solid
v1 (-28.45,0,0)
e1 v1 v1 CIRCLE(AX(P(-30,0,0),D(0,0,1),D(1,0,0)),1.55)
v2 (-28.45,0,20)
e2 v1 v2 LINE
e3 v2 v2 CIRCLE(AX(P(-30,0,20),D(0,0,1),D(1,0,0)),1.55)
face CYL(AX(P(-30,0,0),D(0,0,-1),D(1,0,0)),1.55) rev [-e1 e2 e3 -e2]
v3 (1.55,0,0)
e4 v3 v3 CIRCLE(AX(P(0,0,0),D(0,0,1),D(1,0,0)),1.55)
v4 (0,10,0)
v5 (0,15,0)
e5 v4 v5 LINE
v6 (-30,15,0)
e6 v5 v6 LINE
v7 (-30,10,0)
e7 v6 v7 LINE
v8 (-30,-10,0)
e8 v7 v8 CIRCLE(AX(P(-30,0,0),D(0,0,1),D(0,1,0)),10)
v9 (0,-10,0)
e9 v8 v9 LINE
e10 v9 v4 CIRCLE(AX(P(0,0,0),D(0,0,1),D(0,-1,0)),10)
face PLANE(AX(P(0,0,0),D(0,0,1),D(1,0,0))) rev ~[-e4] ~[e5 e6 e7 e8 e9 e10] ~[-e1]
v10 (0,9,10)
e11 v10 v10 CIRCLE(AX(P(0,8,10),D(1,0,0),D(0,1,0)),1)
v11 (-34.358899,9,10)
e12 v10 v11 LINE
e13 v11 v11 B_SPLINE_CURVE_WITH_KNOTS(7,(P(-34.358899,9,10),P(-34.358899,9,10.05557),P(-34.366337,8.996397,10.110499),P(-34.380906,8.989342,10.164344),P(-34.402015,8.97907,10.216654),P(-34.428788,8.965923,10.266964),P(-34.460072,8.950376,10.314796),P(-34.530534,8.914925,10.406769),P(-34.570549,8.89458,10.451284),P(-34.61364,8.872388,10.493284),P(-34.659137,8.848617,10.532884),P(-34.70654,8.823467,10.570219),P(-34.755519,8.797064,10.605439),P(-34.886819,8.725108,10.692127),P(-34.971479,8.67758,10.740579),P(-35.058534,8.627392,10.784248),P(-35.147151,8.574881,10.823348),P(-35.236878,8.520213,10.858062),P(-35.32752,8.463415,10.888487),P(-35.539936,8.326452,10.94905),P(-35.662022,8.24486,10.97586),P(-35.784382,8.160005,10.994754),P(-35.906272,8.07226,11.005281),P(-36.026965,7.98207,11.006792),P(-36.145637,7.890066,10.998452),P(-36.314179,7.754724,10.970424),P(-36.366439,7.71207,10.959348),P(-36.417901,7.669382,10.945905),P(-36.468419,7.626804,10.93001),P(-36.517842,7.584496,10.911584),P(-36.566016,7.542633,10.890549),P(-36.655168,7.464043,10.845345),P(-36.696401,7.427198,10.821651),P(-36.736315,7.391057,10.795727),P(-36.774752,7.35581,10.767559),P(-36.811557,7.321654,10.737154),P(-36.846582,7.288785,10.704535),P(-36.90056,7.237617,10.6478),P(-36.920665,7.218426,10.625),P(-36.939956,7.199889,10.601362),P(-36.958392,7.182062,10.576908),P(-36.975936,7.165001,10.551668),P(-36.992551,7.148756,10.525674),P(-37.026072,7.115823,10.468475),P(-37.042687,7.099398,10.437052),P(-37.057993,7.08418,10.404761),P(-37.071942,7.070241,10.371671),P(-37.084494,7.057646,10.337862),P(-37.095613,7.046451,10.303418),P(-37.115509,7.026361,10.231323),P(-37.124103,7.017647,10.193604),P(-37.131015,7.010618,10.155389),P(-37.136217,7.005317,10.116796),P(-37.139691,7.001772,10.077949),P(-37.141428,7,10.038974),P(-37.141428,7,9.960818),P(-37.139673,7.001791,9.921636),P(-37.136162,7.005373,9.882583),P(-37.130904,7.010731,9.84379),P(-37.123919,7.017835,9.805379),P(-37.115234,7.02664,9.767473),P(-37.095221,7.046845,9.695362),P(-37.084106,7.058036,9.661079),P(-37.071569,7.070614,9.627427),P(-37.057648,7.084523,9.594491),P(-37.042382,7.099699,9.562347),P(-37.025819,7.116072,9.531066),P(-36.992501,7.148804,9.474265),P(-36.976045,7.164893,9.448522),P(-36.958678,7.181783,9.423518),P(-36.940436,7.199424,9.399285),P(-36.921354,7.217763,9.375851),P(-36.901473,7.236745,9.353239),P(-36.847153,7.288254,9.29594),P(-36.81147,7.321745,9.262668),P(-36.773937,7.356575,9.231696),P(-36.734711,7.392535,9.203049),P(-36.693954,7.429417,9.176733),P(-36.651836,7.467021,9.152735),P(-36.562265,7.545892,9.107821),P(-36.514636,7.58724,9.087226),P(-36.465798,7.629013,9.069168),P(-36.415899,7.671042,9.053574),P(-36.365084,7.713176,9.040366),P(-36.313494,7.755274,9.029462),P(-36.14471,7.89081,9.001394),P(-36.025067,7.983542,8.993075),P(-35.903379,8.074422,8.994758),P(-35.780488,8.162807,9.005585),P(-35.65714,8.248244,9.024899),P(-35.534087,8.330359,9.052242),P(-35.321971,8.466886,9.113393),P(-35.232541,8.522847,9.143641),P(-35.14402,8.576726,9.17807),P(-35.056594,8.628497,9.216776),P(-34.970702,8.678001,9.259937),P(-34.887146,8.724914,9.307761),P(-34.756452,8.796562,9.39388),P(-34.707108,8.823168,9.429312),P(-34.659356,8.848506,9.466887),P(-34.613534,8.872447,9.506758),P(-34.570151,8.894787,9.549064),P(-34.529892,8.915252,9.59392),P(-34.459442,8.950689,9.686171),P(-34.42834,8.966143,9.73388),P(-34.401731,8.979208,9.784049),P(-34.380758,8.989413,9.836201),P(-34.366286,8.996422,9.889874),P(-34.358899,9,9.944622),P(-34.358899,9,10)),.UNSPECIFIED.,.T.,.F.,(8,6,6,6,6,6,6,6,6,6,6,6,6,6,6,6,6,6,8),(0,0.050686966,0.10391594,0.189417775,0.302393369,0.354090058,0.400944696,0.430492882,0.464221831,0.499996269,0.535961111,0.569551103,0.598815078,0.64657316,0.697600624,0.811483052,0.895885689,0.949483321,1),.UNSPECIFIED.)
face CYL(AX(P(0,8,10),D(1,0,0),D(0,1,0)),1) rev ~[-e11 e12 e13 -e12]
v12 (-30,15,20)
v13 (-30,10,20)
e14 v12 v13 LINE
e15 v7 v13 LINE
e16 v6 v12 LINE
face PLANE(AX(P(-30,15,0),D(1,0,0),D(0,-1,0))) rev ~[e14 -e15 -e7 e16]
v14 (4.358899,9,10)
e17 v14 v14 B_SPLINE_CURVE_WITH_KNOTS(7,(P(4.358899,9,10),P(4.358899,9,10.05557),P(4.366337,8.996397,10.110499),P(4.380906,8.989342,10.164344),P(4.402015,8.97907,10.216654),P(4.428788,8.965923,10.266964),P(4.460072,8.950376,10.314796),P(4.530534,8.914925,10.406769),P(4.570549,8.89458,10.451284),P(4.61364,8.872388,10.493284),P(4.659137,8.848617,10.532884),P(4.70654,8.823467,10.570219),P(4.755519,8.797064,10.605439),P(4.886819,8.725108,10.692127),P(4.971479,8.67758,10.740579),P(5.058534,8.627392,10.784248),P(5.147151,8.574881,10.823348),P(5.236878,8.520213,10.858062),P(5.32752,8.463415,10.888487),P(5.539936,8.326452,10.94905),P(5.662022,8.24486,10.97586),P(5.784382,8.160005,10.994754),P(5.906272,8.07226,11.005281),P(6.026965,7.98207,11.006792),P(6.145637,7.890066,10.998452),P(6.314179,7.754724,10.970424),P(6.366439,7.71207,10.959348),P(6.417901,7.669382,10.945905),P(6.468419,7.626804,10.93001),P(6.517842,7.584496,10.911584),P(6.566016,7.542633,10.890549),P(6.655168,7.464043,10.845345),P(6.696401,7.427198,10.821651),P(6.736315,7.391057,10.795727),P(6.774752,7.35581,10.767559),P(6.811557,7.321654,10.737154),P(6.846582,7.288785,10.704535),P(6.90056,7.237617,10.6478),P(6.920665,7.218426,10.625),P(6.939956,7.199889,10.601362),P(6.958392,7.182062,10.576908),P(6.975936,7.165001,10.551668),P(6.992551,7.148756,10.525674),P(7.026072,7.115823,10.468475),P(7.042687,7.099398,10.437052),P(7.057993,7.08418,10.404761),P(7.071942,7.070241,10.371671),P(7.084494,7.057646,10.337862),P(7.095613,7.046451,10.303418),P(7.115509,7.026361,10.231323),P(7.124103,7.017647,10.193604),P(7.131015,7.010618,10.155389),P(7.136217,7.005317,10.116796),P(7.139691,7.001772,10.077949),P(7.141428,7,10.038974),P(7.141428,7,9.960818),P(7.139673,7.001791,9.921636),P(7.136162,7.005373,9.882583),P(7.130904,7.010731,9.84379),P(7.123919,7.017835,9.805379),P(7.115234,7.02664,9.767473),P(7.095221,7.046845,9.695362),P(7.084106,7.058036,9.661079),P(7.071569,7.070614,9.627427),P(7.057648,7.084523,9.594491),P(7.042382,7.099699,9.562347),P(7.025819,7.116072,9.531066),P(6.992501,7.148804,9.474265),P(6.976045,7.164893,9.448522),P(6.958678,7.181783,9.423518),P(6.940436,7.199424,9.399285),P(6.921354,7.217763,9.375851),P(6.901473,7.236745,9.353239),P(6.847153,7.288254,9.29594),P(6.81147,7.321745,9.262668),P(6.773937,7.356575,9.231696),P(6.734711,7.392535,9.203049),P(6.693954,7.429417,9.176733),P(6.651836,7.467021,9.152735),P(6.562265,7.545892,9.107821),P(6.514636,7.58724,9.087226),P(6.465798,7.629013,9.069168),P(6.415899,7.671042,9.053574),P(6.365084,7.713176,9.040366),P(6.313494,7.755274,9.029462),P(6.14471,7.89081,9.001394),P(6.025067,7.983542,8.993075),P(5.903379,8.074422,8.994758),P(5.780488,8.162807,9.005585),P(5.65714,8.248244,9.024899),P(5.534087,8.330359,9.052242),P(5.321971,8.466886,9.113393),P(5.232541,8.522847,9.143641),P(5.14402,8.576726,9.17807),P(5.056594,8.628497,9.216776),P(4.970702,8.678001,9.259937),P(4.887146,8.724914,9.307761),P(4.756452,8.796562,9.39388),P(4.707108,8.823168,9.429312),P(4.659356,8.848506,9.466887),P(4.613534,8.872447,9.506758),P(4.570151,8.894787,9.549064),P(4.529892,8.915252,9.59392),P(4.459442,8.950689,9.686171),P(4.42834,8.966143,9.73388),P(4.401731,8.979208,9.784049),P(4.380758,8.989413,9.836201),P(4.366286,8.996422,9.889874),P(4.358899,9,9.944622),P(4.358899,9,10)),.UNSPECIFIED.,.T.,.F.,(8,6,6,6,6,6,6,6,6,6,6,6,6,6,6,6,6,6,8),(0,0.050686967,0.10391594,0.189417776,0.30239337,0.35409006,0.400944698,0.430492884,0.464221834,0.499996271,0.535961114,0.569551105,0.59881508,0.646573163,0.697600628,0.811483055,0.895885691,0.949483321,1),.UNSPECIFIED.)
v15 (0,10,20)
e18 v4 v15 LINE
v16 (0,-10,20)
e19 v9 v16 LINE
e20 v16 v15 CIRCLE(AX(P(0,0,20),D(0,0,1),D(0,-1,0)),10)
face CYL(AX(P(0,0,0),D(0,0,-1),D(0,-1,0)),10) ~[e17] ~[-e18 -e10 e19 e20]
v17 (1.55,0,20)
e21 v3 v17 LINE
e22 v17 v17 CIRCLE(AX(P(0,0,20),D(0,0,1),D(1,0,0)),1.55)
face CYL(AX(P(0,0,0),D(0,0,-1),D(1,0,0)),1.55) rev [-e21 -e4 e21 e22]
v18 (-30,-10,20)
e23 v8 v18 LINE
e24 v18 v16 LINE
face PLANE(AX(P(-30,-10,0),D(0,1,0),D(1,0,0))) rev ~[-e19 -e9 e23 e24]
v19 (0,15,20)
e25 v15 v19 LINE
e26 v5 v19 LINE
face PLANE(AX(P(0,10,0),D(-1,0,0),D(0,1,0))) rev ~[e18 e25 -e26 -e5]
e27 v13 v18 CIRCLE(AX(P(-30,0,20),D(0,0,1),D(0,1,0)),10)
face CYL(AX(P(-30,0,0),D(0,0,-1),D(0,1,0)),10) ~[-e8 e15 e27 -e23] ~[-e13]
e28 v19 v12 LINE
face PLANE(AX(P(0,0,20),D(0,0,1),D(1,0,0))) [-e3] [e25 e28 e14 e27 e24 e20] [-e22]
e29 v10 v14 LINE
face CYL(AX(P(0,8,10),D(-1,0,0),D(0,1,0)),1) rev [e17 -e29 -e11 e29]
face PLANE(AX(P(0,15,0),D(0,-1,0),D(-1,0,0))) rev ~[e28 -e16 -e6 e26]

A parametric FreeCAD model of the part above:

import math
import FreeCAD as App
import Part
import Sketcher
from FreeCAD import Vector
Q = App.Units.Quantity

doc = App.newDocument("Part")
body = doc.addObject("PartDesign::Body", "Body")

sketch1 = body.newObject("Sketcher::SketchObject", "Sketch")
sketch1.AttachmentSupport = (doc.getObject("XY_Plane"), [""])
sketch1.MapMode = "FlatFace"
sketch1.addGeometry([
    Part.ArcOfCircle(Part.Circle(Vector(0, 0, 0), Vector(0, 0, 1), 10), math.radians(-90), math.radians(90)),
    Part.LineSegment(Vector(0, 10, 0), Vector(0, 15, 0)),
    Part.LineSegment(Vector(0, 15, 0), Vector(-30, 15, 0)),
    Part.LineSegment(Vector(-30, 15, 0), Vector(-30, 10, 0)),
    Part.ArcOfCircle(Part.Circle(Vector(-30, 0, 0), Vector(0, 0, 1), 10), math.radians(90), math.radians(270)),
    Part.LineSegment(Vector(-30, -10, 0), Vector(0, -10, 0)),
    Part.Circle(Vector(-30, 0, 0), Vector(0, 0, 1), 1.6),
    Part.Circle(Vector(0, 0, 0), Vector(0, 0, 1), 1.6),
], False)
sketch1.addConstraint([
    Sketcher.Constraint("Coincident", 0, 2, 1, 1),
    Sketcher.Constraint("Coincident", 1, 2, 2, 1),
    Sketcher.Constraint("Coincident", 2, 2, 3, 1),
    Sketcher.Constraint("Coincident", 3, 2, 4, 1),
    Sketcher.Constraint("Tangent", 4, 2, 5, 1),
    Sketcher.Constraint("Tangent", 5, 2, 0, 1),
    Sketcher.Constraint("Vertical", 1),
    Sketcher.Constraint("Horizontal", 2),
    Sketcher.Constraint("Vertical", 3),
    Sketcher.Constraint("Horizontal", 5),
    Sketcher.Constraint("Coincident", 0, 3, -1, 1),
    Sketcher.Constraint("Coincident", 7, 3, -1, 1),
    Sketcher.Constraint("Coincident", 6, 3, 4, 3),
    Sketcher.Constraint("Equal", 0, 4),
    Sketcher.Constraint("Equal", 6, 7),
    Sketcher.Constraint("PointOnObject", 0, 2, -2),
    Sketcher.Constraint("Vertical", 6, 3, 2, 2),
    Sketcher.Constraint("Radius", 0, Q("10 mm")),
    Sketcher.Constraint("Diameter", 6, Q("3.1 mm")),
    Sketcher.Constraint("DistanceX", 2, 2, 2, 1, Q("30 mm")),
    Sketcher.Constraint("DistanceY", 1, 1, 1, 2, Q("5 mm")),
])
pad1 = body.newObject("PartDesign::Pad", "Pad")
pad1.Profile = sketch1
pad1.Length = 20

sketch2 = body.newObject("Sketcher::SketchObject", "Sketch001")
sketch2.AttachmentSupport = (doc.getObject("YZ_Plane"), [""])
sketch2.MapMode = "FlatFace"
sketch2.addGeometry(Part.Circle(Vector(8, 10, 0), Vector(0, 0, 1), 1), False)
sketch2.addConstraint([
    Sketcher.Constraint("Diameter", 0, Q("2 mm")),
    Sketcher.Constraint("DistanceX", -1, 1, 0, 3, Q("8 mm")),
    Sketcher.Constraint("DistanceY", -1, 1, 0, 3, Q("10 mm")),
])
pocket1 = body.newObject("PartDesign::Pocket", "Pocket")
pocket1.Profile = sketch2
pocket1.Length = 100
pocket1.Midplane = True

doc.recompute()
